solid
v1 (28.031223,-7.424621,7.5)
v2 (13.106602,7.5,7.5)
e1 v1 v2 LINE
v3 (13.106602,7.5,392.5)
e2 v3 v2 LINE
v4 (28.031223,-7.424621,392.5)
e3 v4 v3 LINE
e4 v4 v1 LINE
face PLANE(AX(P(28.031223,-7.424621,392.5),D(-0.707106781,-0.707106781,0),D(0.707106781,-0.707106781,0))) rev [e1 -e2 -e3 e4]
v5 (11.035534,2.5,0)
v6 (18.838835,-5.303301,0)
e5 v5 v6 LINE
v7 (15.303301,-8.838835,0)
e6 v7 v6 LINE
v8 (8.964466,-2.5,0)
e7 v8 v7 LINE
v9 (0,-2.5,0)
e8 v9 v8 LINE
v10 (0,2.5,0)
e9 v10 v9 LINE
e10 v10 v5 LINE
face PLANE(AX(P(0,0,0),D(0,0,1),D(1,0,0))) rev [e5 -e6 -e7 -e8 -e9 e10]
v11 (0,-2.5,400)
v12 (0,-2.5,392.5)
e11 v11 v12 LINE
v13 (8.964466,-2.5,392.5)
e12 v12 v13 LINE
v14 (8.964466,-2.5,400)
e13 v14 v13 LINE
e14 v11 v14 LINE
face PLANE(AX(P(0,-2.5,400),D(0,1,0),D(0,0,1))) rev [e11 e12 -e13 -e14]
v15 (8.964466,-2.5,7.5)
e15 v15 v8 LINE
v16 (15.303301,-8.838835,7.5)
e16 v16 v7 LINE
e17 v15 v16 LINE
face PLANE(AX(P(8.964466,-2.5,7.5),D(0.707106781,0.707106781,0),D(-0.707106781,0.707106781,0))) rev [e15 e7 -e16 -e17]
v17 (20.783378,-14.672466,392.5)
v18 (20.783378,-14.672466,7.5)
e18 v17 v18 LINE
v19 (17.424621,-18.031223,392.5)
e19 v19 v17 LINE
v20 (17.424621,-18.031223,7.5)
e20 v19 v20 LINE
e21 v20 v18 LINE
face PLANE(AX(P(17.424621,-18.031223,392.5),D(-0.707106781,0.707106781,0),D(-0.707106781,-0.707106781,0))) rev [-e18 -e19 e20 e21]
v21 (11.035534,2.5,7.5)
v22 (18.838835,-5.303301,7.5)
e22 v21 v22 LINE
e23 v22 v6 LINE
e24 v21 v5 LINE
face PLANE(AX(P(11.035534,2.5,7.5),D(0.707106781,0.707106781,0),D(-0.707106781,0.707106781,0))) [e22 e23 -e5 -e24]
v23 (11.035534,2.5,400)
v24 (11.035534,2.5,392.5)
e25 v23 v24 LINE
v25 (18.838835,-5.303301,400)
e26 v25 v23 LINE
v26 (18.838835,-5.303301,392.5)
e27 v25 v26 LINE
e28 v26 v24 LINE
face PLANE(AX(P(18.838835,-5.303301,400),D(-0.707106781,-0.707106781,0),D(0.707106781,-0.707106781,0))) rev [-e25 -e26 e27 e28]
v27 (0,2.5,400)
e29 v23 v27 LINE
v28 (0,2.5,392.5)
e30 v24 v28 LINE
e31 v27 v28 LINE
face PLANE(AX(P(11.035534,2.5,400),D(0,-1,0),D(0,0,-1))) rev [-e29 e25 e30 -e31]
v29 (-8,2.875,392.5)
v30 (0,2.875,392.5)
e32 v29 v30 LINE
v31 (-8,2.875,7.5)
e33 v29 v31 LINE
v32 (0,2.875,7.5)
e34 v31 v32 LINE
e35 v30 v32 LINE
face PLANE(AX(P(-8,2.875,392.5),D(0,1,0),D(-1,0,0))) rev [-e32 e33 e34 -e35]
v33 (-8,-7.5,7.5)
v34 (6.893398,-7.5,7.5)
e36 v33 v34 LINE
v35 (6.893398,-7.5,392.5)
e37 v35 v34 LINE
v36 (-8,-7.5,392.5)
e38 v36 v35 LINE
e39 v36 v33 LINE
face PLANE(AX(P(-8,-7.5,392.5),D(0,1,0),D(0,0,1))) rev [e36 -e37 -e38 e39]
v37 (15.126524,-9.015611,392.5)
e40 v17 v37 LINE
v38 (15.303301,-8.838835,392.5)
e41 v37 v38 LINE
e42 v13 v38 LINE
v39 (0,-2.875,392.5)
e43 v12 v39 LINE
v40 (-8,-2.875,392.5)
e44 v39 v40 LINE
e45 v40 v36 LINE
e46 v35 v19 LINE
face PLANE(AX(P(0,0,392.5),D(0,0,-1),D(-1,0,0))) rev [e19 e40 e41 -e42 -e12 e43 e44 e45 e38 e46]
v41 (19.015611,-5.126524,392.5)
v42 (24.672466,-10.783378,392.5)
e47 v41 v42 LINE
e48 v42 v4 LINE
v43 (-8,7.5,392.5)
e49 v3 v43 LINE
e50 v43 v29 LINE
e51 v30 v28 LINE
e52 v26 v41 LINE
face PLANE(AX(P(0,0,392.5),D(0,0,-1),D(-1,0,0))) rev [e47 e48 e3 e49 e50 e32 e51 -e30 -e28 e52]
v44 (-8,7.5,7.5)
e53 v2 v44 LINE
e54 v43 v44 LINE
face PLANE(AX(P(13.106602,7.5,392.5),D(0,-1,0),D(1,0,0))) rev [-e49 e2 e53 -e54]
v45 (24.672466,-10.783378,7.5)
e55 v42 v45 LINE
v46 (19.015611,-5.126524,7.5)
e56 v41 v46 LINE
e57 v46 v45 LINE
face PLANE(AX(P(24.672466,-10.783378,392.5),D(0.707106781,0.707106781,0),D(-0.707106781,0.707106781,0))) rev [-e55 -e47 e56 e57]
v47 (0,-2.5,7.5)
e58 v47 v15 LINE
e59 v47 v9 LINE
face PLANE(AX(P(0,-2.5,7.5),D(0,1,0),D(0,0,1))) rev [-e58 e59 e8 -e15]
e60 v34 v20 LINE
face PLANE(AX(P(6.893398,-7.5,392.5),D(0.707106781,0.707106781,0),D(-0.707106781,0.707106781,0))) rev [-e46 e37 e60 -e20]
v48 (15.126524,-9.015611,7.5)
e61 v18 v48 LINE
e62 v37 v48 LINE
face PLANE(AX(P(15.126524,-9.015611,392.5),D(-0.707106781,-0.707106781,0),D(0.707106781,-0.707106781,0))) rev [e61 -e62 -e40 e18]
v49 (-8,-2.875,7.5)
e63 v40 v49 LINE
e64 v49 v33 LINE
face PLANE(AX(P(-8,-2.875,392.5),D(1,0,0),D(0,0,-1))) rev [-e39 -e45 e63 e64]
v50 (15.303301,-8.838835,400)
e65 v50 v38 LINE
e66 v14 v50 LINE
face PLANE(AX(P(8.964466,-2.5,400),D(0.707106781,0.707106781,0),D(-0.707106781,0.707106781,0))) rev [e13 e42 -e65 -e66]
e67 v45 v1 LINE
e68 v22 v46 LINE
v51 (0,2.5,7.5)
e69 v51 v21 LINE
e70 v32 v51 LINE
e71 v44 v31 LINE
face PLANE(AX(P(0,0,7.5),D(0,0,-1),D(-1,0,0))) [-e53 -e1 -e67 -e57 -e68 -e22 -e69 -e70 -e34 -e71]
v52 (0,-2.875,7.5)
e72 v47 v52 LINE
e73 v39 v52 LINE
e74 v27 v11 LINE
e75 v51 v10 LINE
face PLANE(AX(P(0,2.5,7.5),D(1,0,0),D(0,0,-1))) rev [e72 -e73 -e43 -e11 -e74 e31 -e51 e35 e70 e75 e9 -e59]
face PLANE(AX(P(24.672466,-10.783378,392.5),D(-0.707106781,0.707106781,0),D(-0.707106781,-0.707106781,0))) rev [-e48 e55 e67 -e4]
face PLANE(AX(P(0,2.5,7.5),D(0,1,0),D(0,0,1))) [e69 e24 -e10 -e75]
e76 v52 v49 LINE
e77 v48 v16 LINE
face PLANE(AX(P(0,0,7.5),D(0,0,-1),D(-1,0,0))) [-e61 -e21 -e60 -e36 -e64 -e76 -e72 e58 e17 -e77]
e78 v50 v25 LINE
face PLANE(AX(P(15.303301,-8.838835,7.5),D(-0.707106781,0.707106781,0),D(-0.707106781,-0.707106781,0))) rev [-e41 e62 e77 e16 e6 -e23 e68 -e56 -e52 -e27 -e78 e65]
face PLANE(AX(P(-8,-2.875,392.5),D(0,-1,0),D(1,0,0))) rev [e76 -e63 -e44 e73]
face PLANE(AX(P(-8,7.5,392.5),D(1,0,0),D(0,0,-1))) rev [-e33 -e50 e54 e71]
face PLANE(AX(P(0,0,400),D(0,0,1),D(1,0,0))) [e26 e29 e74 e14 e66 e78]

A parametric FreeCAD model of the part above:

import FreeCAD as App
import Part
import Sketcher
from FreeCAD import Vector
Q = App.Units.Quantity

doc = App.newDocument("Part")
body = doc.addObject("PartDesign::Body", "Body")

# Sketch on XY plane
sketch1 = body.newObject("Sketcher::SketchObject", "Sketch")
sketch1.AttachmentSupport = (doc.getObject("XY_Plane"), [""])
sketch1.MapMode = "FlatFace"
sketch1.addGeometry([
    Part.LineSegment(Vector(0, -2, 0), Vector(9, -2, 0)),  # 0
    Part.LineSegment(Vector(9, -2, 0), Vector(15, -9, 0)),  # 1
    Part.LineSegment(Vector(15, -9, 0), Vector(19, -5, 0)),  # 2
    Part.LineSegment(Vector(19, -5, 0), Vector(11, 2, 0)),  # 3
    Part.LineSegment(Vector(11, 2, 0), Vector(0, 2, 0)),  # 4
    Part.LineSegment(Vector(0, 2, 0), Vector(0, -2, 0)),  # 5
], False)
sketch1.addConstraint([
    Sketcher.Constraint("Coincident", 0, 2, 1, 1),
    Sketcher.Constraint("Coincident", 1, 2, 2, 1),
    Sketcher.Constraint("Coincident", 2, 2, 3, 1),
    Sketcher.Constraint("Coincident", 3, 2, 4, 1),
    Sketcher.Constraint("Coincident", 4, 2, 5, 1),
    Sketcher.Constraint("Coincident", 5, 2, 0, 1),
    Sketcher.Constraint("Horizontal", 0),
    Sketcher.Constraint("Horizontal", 4),
    Sketcher.Constraint("Vertical", 5),
    Sketcher.Constraint("Symmetric", 4, 2, 5, 2, -1, 1),
    Sketcher.Constraint("Perpendicular", 1, 2),
    Sketcher.Constraint("Perpendicular", 2, 3),
    Sketcher.Constraint("DistanceY", 5, 2, 5, 1, Q("5 mm")),
    Sketcher.Constraint("Angle", 1, Q("-45 deg")),
    Sketcher.Constraint("Distance", 2, Q("5 mm")),
    Sketcher.Constraint("DistanceX", -1, 1, 1, 2, Q("15.303301 mm")),
    Sketcher.Constraint("DistanceY", 2, 2, -1, 1, Q("5.303301 mm")),
])
pad1 = body.newObject("PartDesign::Pad", "Pad")
pad1.Profile = sketch1
pad1.Length = 7.5

# Sketch on XY plane
sketch2 = body.newObject("Sketcher::SketchObject", "Sketch001")
sketch2.AttachmentSupport = (doc.getObject("XY_Plane"), [""])
sketch2.MapMode = "FlatFace"
sketch2.AttachmentOffset = App.Placement(Vector(0, 0, 7.5), App.Rotation())
sketch2.addGeometry([
    Part.LineSegment(Vector(20.8, -14.7, 0), Vector(15.1, -9, 0)),  # 0
    Part.LineSegment(Vector(15.1, -9, 0), Vector(19, -5.1, 0)),  # 1
    Part.LineSegment(Vector(19, -5.1, 0), Vector(24.7, -10.8, 0)),  # 2
    Part.LineSegment(Vector(24.7, -10.8, 0), Vector(28, -7.4, 0)),  # 3
    Part.LineSegment(Vector(28, -7.4, 0), Vector(13.1, 7.5, 0)),  # 4
    Part.LineSegment(Vector(13.1, 7.5, 0), Vector(-8, 7.5, 0)),  # 5
    Part.LineSegment(Vector(-8, 7.5, 0), Vector(-8, 2.9, 0)),  # 6
    Part.LineSegment(Vector(-8, 2.9, 0), Vector(0, 2.9, 0)),  # 7
    Part.LineSegment(Vector(0, 2.9, 0), Vector(0, -2.9, 0)),  # 8
    Part.LineSegment(Vector(0, -2.9, 0), Vector(-8, -2.9, 0)),  # 9
    Part.LineSegment(Vector(-8, -2.9, 0), Vector(-8, -7.5, 0)),  # 10
    Part.LineSegment(Vector(-8, -7.5, 0), Vector(6.9, -7.5, 0)),  # 11
    Part.LineSegment(Vector(6.9, -7.5, 0), Vector(17.4, -18, 0)),  # 12
    Part.LineSegment(Vector(17.4, -18, 0), Vector(20.8, -14.7, 0)),  # 13
], False)
sketch2.addConstraint([
    Sketcher.Constraint("Coincident", 0, 2, 1, 1),
    Sketcher.Constraint("Coincident", 1, 2, 2, 1),
    Sketcher.Constraint("Coincident", 2, 2, 3, 1),
    Sketcher.Constraint("Coincident", 3, 2, 4, 1),
    Sketcher.Constraint("Coincident", 4, 2, 5, 1),
    Sketcher.Constraint("Coincident", 5, 2, 6, 1),
    Sketcher.Constraint("Coincident", 6, 2, 7, 1),
    Sketcher.Constraint("Coincident", 7, 2, 8, 1),
    Sketcher.Constraint("Coincident", 8, 2, 9, 1),
    Sketcher.Constraint("Coincident", 9, 2, 10, 1),
    Sketcher.Constraint("Coincident", 10, 2, 11, 1),
    Sketcher.Constraint("Coincident", 11, 2, 12, 1),
    Sketcher.Constraint("Coincident", 12, 2, 13, 1),
    Sketcher.Constraint("Coincident", 13, 2, 0, 1),
    Sketcher.Constraint("Horizontal", 5),
    Sketcher.Constraint("Vertical", 6),
    Sketcher.Constraint("Horizontal", 7),
    Sketcher.Constraint("Vertical", 8),
    Sketcher.Constraint("Horizontal", 9),
    Sketcher.Constraint("Vertical", 10),
    Sketcher.Constraint("Horizontal", 11),
    Sketcher.Constraint("Symmetric", 7, 2, 8, 2, -1, 1),
    Sketcher.Constraint("Symmetric", 5, 2, 10, 2, -1),
    Sketcher.Constraint("Perpendicular", 0, 1),
    Sketcher.Constraint("Perpendicular", 1, 2),
    Sketcher.Constraint("Perpendicular", 2, 3),
    Sketcher.Constraint("Perpendicular", 3, 4),
    Sketcher.Constraint("Parallel", 4, 12),
    Sketcher.Constraint("Perpendicular", 12, 13),
    Sketcher.Constraint("Equal", 0, 2),
    Sketcher.Constraint("Equal", 3, 13),
    Sketcher.Constraint("DistanceX", 7, 1, 7, 2, Q("8 mm")),
    Sketcher.Constraint("Angle", 0, Q("135 deg")),
    Sketcher.Constraint("Distance", 0, Q("8 mm")),
    Sketcher.Constraint("DistanceY", 10, 2, 5, 2, Q("15 mm")),
    Sketcher.Constraint("Distance", 1, Q("5.5 mm")),
    Sketcher.Constraint("DistanceY", 8, 2, 8, 1, Q("5.75 mm")),
    Sketcher.Constraint("Distance", 3, Q("4.75 mm")),
    Sketcher.Constraint("DistanceX", 5, 2, 5, 1, Q("21.106602 mm")),
    Sketcher.Constraint("Distance", 4, Q("21.106602 mm")),
])
pad2 = body.newObject("PartDesign::Pad", "Pad001")
pad2.Profile = sketch2
pad2.Length = 385

# Sketch on XY plane
sketch3 = body.newObject("Sketcher::SketchObject", "Sketch002")
sketch3.AttachmentSupport = (doc.getObject("XY_Plane"), [""])
sketch3.MapMode = "FlatFace"
sketch3.AttachmentOffset = App.Placement(Vector(0, 0, 392.5), App.Rotation())
sketch3.addGeometry([
    Part.LineSegment(Vector(15, -9, 0), Vector(19, -5, 0)),  # 0
    Part.LineSegment(Vector(19, -5, 0), Vector(11, 2, 0)),  # 1
    Part.LineSegment(Vector(11, 2, 0), Vector(0, 2, 0)),  # 2
    Part.LineSegment(Vector(0, 2, 0), Vector(0, -2, 0)),  # 3
    Part.LineSegment(Vector(0, -2, 0), Vector(9, -2, 0)),  # 4
    Part.LineSegment(Vector(9, -2, 0), Vector(15, -9, 0)),  # 5
], False)
sketch3.addConstraint([
    Sketcher.Constraint("Coincident", 0, 2, 1, 1),
    Sketcher.Constraint("Coincident", 1, 2, 2, 1),
    Sketcher.Constraint("Coincident", 2, 2, 3, 1),
    Sketcher.Constraint("Coincident", 3, 2, 4, 1),
    Sketcher.Constraint("Coincident", 4, 2, 5, 1),
    Sketcher.Constraint("Coincident", 5, 2, 0, 1),
    Sketcher.Constraint("Horizontal", 2),
    Sketcher.Constraint("Vertical", 3),
    Sketcher.Constraint("Horizontal", 4),
    Sketcher.Constraint("Symmetric", 2, 2, 3, 2, -1, 1),
    Sketcher.Constraint("Perpendicular", 0, 1),
    Sketcher.Constraint("Parallel", 1, 5),
    Sketcher.Constraint("DistanceY", 3, 2, 3, 1, Q("5 mm")),
    Sketcher.Constraint("Angle", 0, Q("45 deg")),
    Sketcher.Constraint("Distance", 0, Q("5 mm")),
    Sketcher.Constraint("DistanceY", 0, 2, -1, 1, Q("5.303301 mm")),
    Sketcher.Constraint("DistanceX", -1, 1, 5, 2, Q("15.303301 mm")),
])
pad3 = body.newObject("PartDesign::Pad", "Pad002")
pad3.Profile = sketch3
pad3.Length = 7.5

doc.recompute()
